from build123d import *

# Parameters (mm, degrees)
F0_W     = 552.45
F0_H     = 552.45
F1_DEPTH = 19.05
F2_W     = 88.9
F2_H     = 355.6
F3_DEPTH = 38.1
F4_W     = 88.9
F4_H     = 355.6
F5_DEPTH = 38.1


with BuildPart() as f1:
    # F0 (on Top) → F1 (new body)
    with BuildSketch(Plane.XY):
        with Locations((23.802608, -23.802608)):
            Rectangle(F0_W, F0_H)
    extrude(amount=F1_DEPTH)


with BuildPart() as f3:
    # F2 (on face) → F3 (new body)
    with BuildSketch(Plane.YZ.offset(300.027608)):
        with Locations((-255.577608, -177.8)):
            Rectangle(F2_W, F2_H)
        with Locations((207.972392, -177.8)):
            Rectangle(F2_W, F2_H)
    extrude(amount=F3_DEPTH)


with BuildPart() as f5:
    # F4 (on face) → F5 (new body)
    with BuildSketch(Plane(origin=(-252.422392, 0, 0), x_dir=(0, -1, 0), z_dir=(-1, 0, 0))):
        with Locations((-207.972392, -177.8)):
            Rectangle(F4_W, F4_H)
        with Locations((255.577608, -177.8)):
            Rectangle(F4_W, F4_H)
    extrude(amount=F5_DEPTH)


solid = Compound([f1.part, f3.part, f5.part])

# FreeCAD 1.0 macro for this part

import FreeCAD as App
import Part
import Sketcher

V = App.Vector
Q = App.Units.Quantity


def add_polygon(sketch, points):
    """Adds a closed chain of lines whose ends are joined by coincident constraints."""
    first, n = sketch.GeometryCount, len(points)
    for a, b in zip(points, points[1:] + points[:1]):
        sketch.addGeometry(Part.LineSegment(App.Vector(*a, 0), App.Vector(*b, 0)), False)
    for i in range(n):
        sketch.addConstraint(Sketcher.Constraint("Coincident", first + i, 2, first + (i + 1) % n, 1))

doc = App.newDocument("Part")
body = doc.addObject("PartDesign::Body", "Body")

# Sketch on XY plane
sketch1 = body.newObject("Sketcher::SketchObject", "Sketch")
sketch1.AttachmentSupport = (doc.getObject("XY_Plane"), [""])
sketch1.MapMode = "FlatFace"
add_polygon(sketch1, [(-252, 252), (-252, -300), (300, -300), (300, 252)])  # lines 0-3
sketch1.addConstraint([
    Sketcher.Constraint("Vertical", 0),
    Sketcher.Constraint("Horizontal", 1),
    Sketcher.Constraint("Vertical", 2),
    Sketcher.Constraint("Horizontal", 3),
    Sketcher.Constraint("Equal", 3, 0),
    Sketcher.Constraint("DistanceX", 1, 1, 1, 2, Q("21.75 in")),
    Sketcher.Constraint("DistanceX", 0, 2, -1, 1, 252.422392),
    Sketcher.Constraint("DistanceY", 0, 2, -1, 1, 300.027608),
])
pad1 = body.newObject("PartDesign::Pad", "Pad")
pad1.Profile = sketch1
pad1.Length = Q("0.75 in")
body2 = doc.addObject("PartDesign::Body", "Body001")
body2.AllowCompound = True

# Sketch on YZ plane
sketch2 = body2.newObject("Sketcher::SketchObject", "Sketch001")
sketch2.AttachmentSupport = (doc.getObject("YZ_Plane001"), [""])
sketch2.MapMode = "FlatFace"
sketch2.AttachmentOffset = App.Placement(V(0, 0, 300.027608), App.Rotation())
add_polygon(sketch2, [(-300, 0), (-300, -356), (-211, -356), (-211, 0)])  # lines 0-3
add_polygon(sketch2, [(164, 0), (164, -356), (252, -356), (252, 0)])  # lines 4-7
sketch2.addConstraint([
    Sketcher.Constraint("Vertical", 0),
    Sketcher.Constraint("Horizontal", 1),
    Sketcher.Constraint("Vertical", 2),
    Sketcher.Constraint("Horizontal", 3),
    Sketcher.Constraint("Vertical", 4),
    Sketcher.Constraint("Horizontal", 5),
    Sketcher.Constraint("Vertical", 6),
    Sketcher.Constraint("Horizontal", 7),
    Sketcher.Constraint("PointOnObject", 2, 2, -1),
    Sketcher.Constraint("PointOnObject", 6, 2, -1),
    Sketcher.Constraint("Horizontal", 1, 2, 4, 2),
    Sketcher.Constraint("Equal", 3, 5),
    Sketcher.Constraint("DistanceY", 0, 2, 0, 1, Q("14 in")),
    Sketcher.Constraint("DistanceX", 1, 1, 1, 2, Q("3.5 in")),
    Sketcher.Constraint("DistanceX", 1, 2, 4, 2, Q("14.75 in")),
    Sketcher.Constraint("DistanceX", 0, 2, -1, 1, 300.027608),
])
pad2 = body2.newObject("PartDesign::Pad", "Pad001")
pad2.Profile = sketch2
pad2.Length = Q("1.5 in")
body3 = doc.addObject("PartDesign::Body", "Body002")
body3.AllowCompound = True

# Sketch on YZ plane
sketch3 = body3.newObject("Sketcher::SketchObject", "Sketch002")
sketch3.AttachmentSupport = (doc.getObject("YZ_Plane002"), [""])
sketch3.MapMode = "FlatFace"
sketch3.AttachmentOffset = App.Placement(V(0, 0, -252.422392), App.Rotation())
add_polygon(sketch3, [(252, 0), (252, -356), (164, -356), (164, 0)])  # lines 0-3
add_polygon(sketch3, [(-211, 0), (-211, -356), (-300, -356), (-300, 0)])  # lines 4-7
sketch3.addConstraint([
    Sketcher.Constraint("Vertical", 0),
    Sketcher.Constraint("Horizontal", 1),
    Sketcher.Constraint("Vertical", 2),
    Sketcher.Constraint("Horizontal", 3),
    Sketcher.Constraint("Vertical", 4),
    Sketcher.Constraint("Horizontal", 5),
    Sketcher.Constraint("Vertical", 6),
    Sketcher.Constraint("Horizontal", 7),
    Sketcher.Constraint("PointOnObject", 2, 2, -1),
    Sketcher.Constraint("PointOnObject", 6, 2, -1),
    Sketcher.Constraint("Horizontal", 1, 2, 4, 2),
    Sketcher.Constraint("Equal", 3, 5),
    Sketcher.Constraint("DistanceY", 0, 2, 0, 1, Q("14 in")),
    Sketcher.Constraint("DistanceX", 1, 2, 1, 1, Q("3.5 in")),
    Sketcher.Constraint("DistanceX", 4, 2, 1, 2, Q("14.75 in")),
    Sketcher.Constraint("DistanceX", -1, 1, 0, 2, 252.422392),
])
pad3 = body3.newObject("PartDesign::Pad", "Pad002")
pad3.Profile = sketch3
pad3.Length = Q("1.5 in")
pad3.Reversed = True

doc.recompute()
